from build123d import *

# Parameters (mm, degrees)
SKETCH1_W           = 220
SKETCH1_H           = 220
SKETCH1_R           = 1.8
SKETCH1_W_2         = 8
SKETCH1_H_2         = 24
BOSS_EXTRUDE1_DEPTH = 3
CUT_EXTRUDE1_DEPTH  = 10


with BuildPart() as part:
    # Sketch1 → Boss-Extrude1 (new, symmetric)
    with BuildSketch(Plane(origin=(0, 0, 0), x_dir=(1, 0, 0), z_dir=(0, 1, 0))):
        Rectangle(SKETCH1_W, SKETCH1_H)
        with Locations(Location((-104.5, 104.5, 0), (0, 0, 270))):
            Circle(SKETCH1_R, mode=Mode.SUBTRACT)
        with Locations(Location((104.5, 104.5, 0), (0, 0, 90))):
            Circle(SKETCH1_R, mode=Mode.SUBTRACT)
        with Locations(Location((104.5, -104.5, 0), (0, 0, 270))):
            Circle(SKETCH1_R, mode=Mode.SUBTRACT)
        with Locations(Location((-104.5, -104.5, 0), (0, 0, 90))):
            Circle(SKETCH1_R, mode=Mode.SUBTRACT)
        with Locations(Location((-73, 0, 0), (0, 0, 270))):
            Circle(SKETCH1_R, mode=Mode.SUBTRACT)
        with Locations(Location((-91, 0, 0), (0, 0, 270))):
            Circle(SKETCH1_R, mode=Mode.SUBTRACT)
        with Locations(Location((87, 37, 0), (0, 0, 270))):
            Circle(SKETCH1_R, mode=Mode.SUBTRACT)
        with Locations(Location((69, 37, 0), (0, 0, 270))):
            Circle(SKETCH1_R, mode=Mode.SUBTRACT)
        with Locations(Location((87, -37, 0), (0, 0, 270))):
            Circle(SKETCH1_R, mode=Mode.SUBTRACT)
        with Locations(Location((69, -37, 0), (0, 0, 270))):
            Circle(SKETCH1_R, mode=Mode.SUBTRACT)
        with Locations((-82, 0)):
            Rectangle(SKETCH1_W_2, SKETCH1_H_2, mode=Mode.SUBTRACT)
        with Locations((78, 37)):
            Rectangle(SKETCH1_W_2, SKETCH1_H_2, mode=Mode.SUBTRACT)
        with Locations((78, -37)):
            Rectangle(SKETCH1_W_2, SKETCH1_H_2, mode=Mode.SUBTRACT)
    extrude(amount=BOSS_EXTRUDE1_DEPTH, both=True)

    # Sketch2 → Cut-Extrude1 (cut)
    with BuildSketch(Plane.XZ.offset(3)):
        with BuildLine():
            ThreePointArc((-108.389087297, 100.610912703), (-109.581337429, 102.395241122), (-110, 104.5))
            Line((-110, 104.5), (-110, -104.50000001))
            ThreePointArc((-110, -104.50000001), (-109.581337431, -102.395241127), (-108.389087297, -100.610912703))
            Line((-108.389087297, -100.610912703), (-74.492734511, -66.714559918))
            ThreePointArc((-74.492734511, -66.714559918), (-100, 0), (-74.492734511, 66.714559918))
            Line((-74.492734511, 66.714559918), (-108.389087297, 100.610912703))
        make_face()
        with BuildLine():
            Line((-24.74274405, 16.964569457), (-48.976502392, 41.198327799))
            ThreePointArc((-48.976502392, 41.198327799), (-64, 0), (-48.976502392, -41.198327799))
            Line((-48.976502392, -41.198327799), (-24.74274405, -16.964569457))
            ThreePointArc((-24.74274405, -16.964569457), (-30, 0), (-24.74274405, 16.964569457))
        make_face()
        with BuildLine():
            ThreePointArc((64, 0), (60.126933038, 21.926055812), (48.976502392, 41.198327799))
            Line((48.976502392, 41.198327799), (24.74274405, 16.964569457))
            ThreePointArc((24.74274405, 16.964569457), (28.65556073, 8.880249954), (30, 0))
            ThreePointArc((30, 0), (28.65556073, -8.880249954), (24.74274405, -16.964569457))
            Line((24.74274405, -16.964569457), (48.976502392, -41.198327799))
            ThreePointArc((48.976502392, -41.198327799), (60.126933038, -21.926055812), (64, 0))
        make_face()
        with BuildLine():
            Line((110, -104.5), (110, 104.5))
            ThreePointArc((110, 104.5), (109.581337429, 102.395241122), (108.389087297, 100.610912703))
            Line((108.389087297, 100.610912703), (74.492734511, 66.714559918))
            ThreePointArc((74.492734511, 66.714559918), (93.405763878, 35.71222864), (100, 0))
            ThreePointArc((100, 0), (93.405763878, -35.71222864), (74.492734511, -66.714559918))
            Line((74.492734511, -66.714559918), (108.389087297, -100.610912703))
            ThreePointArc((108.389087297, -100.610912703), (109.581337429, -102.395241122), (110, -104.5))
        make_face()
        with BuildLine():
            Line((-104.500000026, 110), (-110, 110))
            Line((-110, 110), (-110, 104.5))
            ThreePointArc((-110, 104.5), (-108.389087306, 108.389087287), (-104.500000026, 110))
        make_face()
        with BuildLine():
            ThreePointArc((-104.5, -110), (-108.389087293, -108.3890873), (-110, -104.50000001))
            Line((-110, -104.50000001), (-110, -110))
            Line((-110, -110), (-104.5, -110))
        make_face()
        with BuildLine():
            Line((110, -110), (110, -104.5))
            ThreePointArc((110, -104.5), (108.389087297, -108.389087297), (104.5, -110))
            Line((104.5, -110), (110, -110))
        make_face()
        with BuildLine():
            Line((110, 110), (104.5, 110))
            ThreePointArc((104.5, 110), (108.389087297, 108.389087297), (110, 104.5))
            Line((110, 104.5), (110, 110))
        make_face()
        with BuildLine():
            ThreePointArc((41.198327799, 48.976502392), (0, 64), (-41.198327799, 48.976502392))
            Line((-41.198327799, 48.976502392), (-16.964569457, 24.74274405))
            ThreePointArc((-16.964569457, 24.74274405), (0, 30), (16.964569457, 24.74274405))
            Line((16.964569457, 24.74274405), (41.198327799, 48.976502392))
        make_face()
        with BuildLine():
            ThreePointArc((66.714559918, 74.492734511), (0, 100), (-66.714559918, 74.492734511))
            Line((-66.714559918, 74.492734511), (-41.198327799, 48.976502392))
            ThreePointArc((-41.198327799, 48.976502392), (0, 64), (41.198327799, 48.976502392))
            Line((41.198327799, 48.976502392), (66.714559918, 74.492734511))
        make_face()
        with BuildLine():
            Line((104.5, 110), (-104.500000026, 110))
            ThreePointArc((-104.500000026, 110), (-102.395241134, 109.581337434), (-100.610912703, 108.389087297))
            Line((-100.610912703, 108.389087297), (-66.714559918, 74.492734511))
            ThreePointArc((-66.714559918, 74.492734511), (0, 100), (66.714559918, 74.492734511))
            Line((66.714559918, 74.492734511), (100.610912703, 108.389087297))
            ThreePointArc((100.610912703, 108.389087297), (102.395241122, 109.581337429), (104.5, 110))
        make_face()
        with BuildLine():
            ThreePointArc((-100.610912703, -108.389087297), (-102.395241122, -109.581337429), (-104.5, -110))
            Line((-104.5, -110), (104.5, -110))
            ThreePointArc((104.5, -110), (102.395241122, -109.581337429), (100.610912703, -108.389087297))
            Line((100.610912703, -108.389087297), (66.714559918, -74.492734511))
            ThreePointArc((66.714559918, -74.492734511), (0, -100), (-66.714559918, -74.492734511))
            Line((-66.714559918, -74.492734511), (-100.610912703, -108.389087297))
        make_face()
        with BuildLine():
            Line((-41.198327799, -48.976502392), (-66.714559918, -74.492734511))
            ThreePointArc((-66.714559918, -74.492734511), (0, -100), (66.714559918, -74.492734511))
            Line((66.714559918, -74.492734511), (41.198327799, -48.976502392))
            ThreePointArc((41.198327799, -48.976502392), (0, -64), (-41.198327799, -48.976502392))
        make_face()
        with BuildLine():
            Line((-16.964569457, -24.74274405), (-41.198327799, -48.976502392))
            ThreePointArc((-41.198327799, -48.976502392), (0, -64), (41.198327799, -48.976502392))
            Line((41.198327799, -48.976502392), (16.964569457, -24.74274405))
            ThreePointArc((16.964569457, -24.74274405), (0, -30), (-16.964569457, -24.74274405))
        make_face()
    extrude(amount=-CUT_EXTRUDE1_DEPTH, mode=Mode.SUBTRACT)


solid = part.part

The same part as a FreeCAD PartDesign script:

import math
import FreeCAD as App
import Part
import Sketcher


def add_polygon(sketch, points):
    """Adds a closed chain of lines whose ends are joined by coincident constraints."""
    first, n = sketch.GeometryCount, len(points)
    for a, b in zip(points, points[1:] + points[:1]):
        sketch.addGeometry(Part.LineSegment(App.Vector(*a, 0), App.Vector(*b, 0)), False)
    for i in range(n):
        sketch.addConstraint(Sketcher.Constraint("Coincident", first + i, 2, first + (i + 1) % n, 1))

doc = App.newDocument("Part")
params = doc.addObject("Spreadsheet::Sheet", "Params")
for row, (alias, value) in enumerate([
    ("sketch1_diameter", "3.6 mm"),
    ("sketch1_width", "220 mm"),
    ("sketch1_width2", "8 mm"),
    ("sketch1_height", "24 mm"),
    ("pad1_length", "6 mm"),
    ("sketch2_radius", "100 mm"),
    ("sketch2_radius2", "64 mm"),
    ("sketch2_radius3", "30 mm"),
    ("sketch2_radius4", "5.5 mm"),
    ("sketch2_width", "209 mm"),
    ("pocket1_length", "10 mm"),
], start=1):
    params.set(f"A{row}", alias)
    params.set(f"B{row}", "=" + value)
    params.setAlias(f"B{row}", alias)

body = doc.addObject("PartDesign::Body", "Body")

sketch1 = body.newObject("Sketcher::SketchObject", "Sketch")
sketch1.AttachmentSupport = (doc.getObject("XZ_Plane"), [""])
sketch1.MapMode = "FlatFace"
add_polygon(sketch1, [(-110, -110), (-110, 110), (110, 110), (110, -110)])
sketch1.addGeometry(Part.Circle(App.Vector(-104.5, 104.5, 0), App.Vector(0, 0, 1), 1.8), False)
sketch1.addGeometry(Part.Circle(App.Vector(104.5, 104.5, 0), App.Vector(0, 0, 1), 1.8), False)
sketch1.addGeometry(Part.Circle(App.Vector(69, 37, 0), App.Vector(0, 0, 1), 1.8), False)
add_polygon(sketch1, [(82, 49), (74, 49), (74, 25), (82, 25)])
sketch1.addGeometry(Part.Circle(App.Vector(87, 37, 0), App.Vector(0, 0, 1), 1.8), False)
sketch1.addGeometry(Part.Circle(App.Vector(-91, 0, 0), App.Vector(0, 0, 1), 1.8), False)
add_polygon(sketch1, [(-78, 12), (-86, 12), (-86, -12), (-78, -12)])
sketch1.addGeometry(Part.Circle(App.Vector(-73, 0, 0), App.Vector(0, 0, 1), 1.8), False)
sketch1.addGeometry(Part.Circle(App.Vector(-104.5, -104.5, 0), App.Vector(0, 0, 1), 1.8), False)
sketch1.addGeometry(Part.Circle(App.Vector(69, -37, 0), App.Vector(0, 0, 1), 1.8), False)
add_polygon(sketch1, [(82, -25), (74, -25), (74, -49), (82, -49)])
sketch1.addGeometry(Part.Circle(App.Vector(87, -37, 0), App.Vector(0, 0, 1), 1.8), False)
sketch1.addGeometry(Part.Circle(App.Vector(104.5, -104.5, 0), App.Vector(0, 0, 1), 1.8), False)
sketch1.addConstraint([
    Sketcher.Constraint("Vertical", 0),
    Sketcher.Constraint("Horizontal", 1),
    Sketcher.Constraint("Vertical", 2),
    Sketcher.Constraint("Horizontal", 3),
    Sketcher.Constraint("Horizontal", 7),
    Sketcher.Constraint("Vertical", 8),
    Sketcher.Constraint("Horizontal", 9),
    Sketcher.Constraint("Vertical", 10),
    Sketcher.Constraint("Horizontal", 13),
    Sketcher.Constraint("Vertical", 14),
    Sketcher.Constraint("Horizontal", 15),
    Sketcher.Constraint("Vertical", 16),
    Sketcher.Constraint("Horizontal", 20),
    Sketcher.Constraint("Vertical", 21),
    Sketcher.Constraint("Horizontal", 22),
    Sketcher.Constraint("Vertical", 23),
    Sketcher.Constraint("Equal", 4, 5),
    Sketcher.Constraint("Equal", 5, 6),
    Sketcher.Constraint("Equal", 6, 11),
    Sketcher.Constraint("Equal", 11, 12),
    Sketcher.Constraint("Equal", 12, 17),
    Sketcher.Constraint("Equal", 17, 18),
    Sketcher.Constraint("Equal", 18, 19),
    Sketcher.Constraint("Equal", 19, 24),
    Sketcher.Constraint("Equal", 24, 25),
    Sketcher.Constraint("Symmetric", 5, 3, 18, 3, -1, 1),
    Sketcher.Constraint("Symmetric", 4, 3, 25, 3, -1, 1),
    Sketcher.Constraint("Symmetric", 0, 2, 2, 2, -1, 1),
    Sketcher.Constraint("Symmetric", 4, 3, 5, 3, -2),
    Sketcher.Constraint("Symmetric", 6, 3, 19, 3, -1),
    Sketcher.Constraint("Symmetric", 11, 3, 24, 3, -1),
    Sketcher.Constraint("Symmetric", 8, 2, 20, 2, -1),
    Sketcher.Constraint("Symmetric", 10, 2, 22, 2, -1),
    Sketcher.Constraint("PointOnObject", 12, 3, -1),
    Sketcher.Constraint("PointOnObject", 17, 3, -1),
    Sketcher.Constraint("Horizontal", 6, 3, 11, 3),
    Sketcher.Constraint("Equal", 9, 13),
    Sketcher.Constraint("Equal", 3, 0),
    Sketcher.Constraint("Equal", 10, 14),
    Sketcher.Constraint("Diameter", 4, 3.6),
    Sketcher.Constraint("DistanceX", 1, 1, 1, 2, 220.0),
    Sketcher.Constraint("DistanceX", 7, 2, 7, 1, 8.0),
    Sketcher.Constraint("DistanceY", 8, 2, 8, 1, 24.0),
    Sketcher.Constraint("DistanceX", -1, 1, 6, 3, 69.0),
    Sketcher.Constraint("DistanceY", -1, 1, 6, 3, 37.0),
    Sketcher.Constraint("DistanceX", -1, 1, 11, 3, 87.0),
    Sketcher.Constraint("DistanceX", 12, 3, -1, 1, 91.0),
    Sketcher.Constraint("DistanceX", 17, 3, -1, 1, 73.0),
    Sketcher.Constraint("DistanceX", -1, 1, 7, 2, 74.0),
    Sketcher.Constraint("DistanceY", -1, 1, 7, 2, 49.0),
    Sketcher.Constraint("DistanceX", 13, 2, -1, 1, 86.0),
    Sketcher.Constraint("DistanceY", -1, 1, 13, 2, 12.0),
    Sketcher.Constraint("DistanceX", 4, 3, 5, 3, 209.0),
    Sketcher.Constraint("DistanceY", 18, 3, 4, 3, 209.0),
])
sketch1.setExpression("Constraints[55]", "Params.sketch1_diameter")
sketch1.setExpression("Constraints[56]", "Params.sketch1_width")
sketch1.setExpression("Constraints[57]", "Params.sketch1_width2")
sketch1.setExpression("Constraints[58]", "Params.sketch1_height")
pad1 = body.newObject("PartDesign::Pad", "Pad")
pad1.Profile = sketch1
pad1.setExpression("Length", "Params.pad1_length")
pad1.Midplane = True

sketch2 = body.newObject("Sketcher::SketchObject", "Sketch001")
sketch2.AttachmentSupport = (doc.getObject("XZ_Plane"), [""])
sketch2.MapMode = "FlatFace"
sketch2.AttachmentOffset = App.Placement(App.Vector(0, 0, 3), App.Rotation())
sketch2.addGeometry([
    Part.ArcOfCircle(Part.Circle(App.Vector(-104.5, 104.5, 0), App.Vector(0, 0, 1), 5.5), math.radians(180), math.radians(225)),
    Part.LineSegment(App.Vector(-110, 104.5, 0), App.Vector(-110, -104.5, 0)),
    Part.ArcOfCircle(Part.Circle(App.Vector(-104.5, -104.5, 0), App.Vector(0, 0, 1), 5.5), math.radians(135), math.radians(180)),
    Part.LineSegment(App.Vector(-108.4, -100.6, 0), App.Vector(-74.5, -66.7, 0)),
    Part.ArcOfCircle(Part.Circle(App.Vector(0, 0, 0), App.Vector(0, 0, 1), 100), math.radians(138), math.radians(222)),
    Part.LineSegment(App.Vector(-74.5, 66.7, 0), App.Vector(-108.4, 100.6, 0)),
    Part.LineSegment(App.Vector(-24.7, 17, 0), App.Vector(-49, 41.2, 0)),
    Part.ArcOfCircle(Part.Circle(App.Vector(0, 0, 0), App.Vector(0, 0, 1), 64), math.radians(140), math.radians(220)),
    Part.LineSegment(App.Vector(-49, -41.2, 0), App.Vector(-24.7, -17, 0)),
    Part.ArcOfCircle(Part.Circle(App.Vector(0, 0, 0), App.Vector(0, 0, 1), 30), math.radians(146), math.radians(214)),
    Part.ArcOfCircle(Part.Circle(App.Vector(0, 0, 0), App.Vector(0, 0, 1), 64), math.radians(0), math.radians(40)),
    Part.LineSegment(App.Vector(49, 41.2, 0), App.Vector(24.7, 17, 0)),
    Part.ArcOfCircle(Part.Circle(App.Vector(0, 0, 0), App.Vector(0, 0, 1), 30), math.radians(-34), math.radians(34)),
    Part.LineSegment(App.Vector(24.7, -17, 0), App.Vector(49, -41.2, 0)),
    Part.ArcOfCircle(Part.Circle(App.Vector(0, 0, 0), App.Vector(0, 0, 1), 64), math.radians(-40), math.radians(0)),
    Part.LineSegment(App.Vector(110, -104.5, 0), App.Vector(110, 104.5, 0)),
    Part.ArcOfCircle(Part.Circle(App.Vector(104.5, 104.5, 0), App.Vector(0, 0, 1), 5.5), math.radians(-45), math.radians(0)),
    Part.LineSegment(App.Vector(108.4, 100.6, 0), App.Vector(74.5, 66.7, 0)),
    Part.ArcOfCircle(Part.Circle(App.Vector(0, 0, 0), App.Vector(0, 0, 1), 100), math.radians(0), math.radians(42)),
    Part.ArcOfCircle(Part.Circle(App.Vector(0, 0, 0), App.Vector(0, 0, 1), 100), math.radians(-42), math.radians(0)),
    Part.LineSegment(App.Vector(74.5, -66.7, 0), App.Vector(108.4, -100.6, 0)),
    Part.ArcOfCircle(Part.Circle(App.Vector(104.5, -104.5, 0), App.Vector(0, 0, 1), 5.5), math.radians(0), math.radians(45)),
    Part.LineSegment(App.Vector(-104.5, 110, 0), App.Vector(-110, 110, 0)),
    Part.LineSegment(App.Vector(-110, 110, 0), App.Vector(-110, 104.5, 0)),
    Part.ArcOfCircle(Part.Circle(App.Vector(-104.5, 104.5, 0), App.Vector(0, 0, 1), 5.5), math.radians(90), math.radians(180)),
    Part.ArcOfCircle(Part.Circle(App.Vector(-104.5, -104.5, 0), App.Vector(0, 0, 1), 5.5), math.radians(-180), math.radians(-90)),
    Part.LineSegment(App.Vector(-110, -104.5, 0), App.Vector(-110, -110, 0)),
    Part.LineSegment(App.Vector(-110, -110, 0), App.Vector(-104.5, -110, 0)),
    Part.LineSegment(App.Vector(110, -110, 0), App.Vector(110, -104.5, 0)),
    Part.ArcOfCircle(Part.Circle(App.Vector(104.5, -104.5, 0), App.Vector(0, 0, 1), 5.5), math.radians(-90), math.radians(0)),
    Part.LineSegment(App.Vector(104.5, -110, 0), App.Vector(110, -110, 0)),
    Part.LineSegment(App.Vector(110, 110, 0), App.Vector(104.5, 110, 0)),
    Part.ArcOfCircle(Part.Circle(App.Vector(104.5, 104.5, 0), App.Vector(0, 0, 1), 5.5), math.radians(0), math.radians(90)),
    Part.LineSegment(App.Vector(110, 104.5, 0), App.Vector(110, 110, 0)),
    Part.ArcOfCircle(Part.Circle(App.Vector(0, 0, 0), App.Vector(0, 0, 1), 30), math.radians(56), math.radians(124)),
    Part.LineSegment(App.Vector(17, 24.7, 0), App.Vector(66.7, 74.5, 0)),
    Part.LineSegment(App.Vector(66.7, 74.5, 0), App.Vector(100.6, 108.4, 0)),
    Part.ArcOfCircle(Part.Circle(App.Vector(104.5, 104.5, 0), App.Vector(0, 0, 1), 5.5), math.radians(90), math.radians(135)),
    Part.LineSegment(App.Vector(104.5, 110, 0), App.Vector(-104.5, 110, 0)),
    Part.ArcOfCircle(Part.Circle(App.Vector(-104.5, 104.5, 0), App.Vector(0, 0, 1), 5.5), math.radians(45), math.radians(90)),
    Part.LineSegment(App.Vector(-100.6, 108.4, 0), App.Vector(-66.7, 74.5, 0)),
    Part.LineSegment(App.Vector(-66.7, 74.5, 0), App.Vector(-17, 24.7, 0)),
    Part.ArcOfCircle(Part.Circle(App.Vector(-104.5, -104.5, 0), App.Vector(0, 0, 1), 5.5), math.radians(-90), math.radians(-45)),
    Part.LineSegment(App.Vector(-104.5, -110, 0), App.Vector(104.5, -110, 0)),
    Part.ArcOfCircle(Part.Circle(App.Vector(104.5, -104.5, 0), App.Vector(0, 0, 1), 5.5), math.radians(-135), math.radians(-90)),
    Part.LineSegment(App.Vector(100.6, -108.4, 0), App.Vector(66.7, -74.5, 0)),
    Part.LineSegment(App.Vector(66.7, -74.5, 0), App.Vector(17, -24.7, 0)),
    Part.ArcOfCircle(Part.Circle(App.Vector(0, 0, 0), App.Vector(0, 0, 1), 30), math.radians(-124), math.radians(-56)),
    Part.LineSegment(App.Vector(-17, -24.7, 0), App.Vector(-66.7, -74.5, 0)),
    Part.LineSegment(App.Vector(-66.7, -74.5, 0), App.Vector(-100.6, -108.4, 0)),
], False)
sketch2.addConstraint([
    Sketcher.Constraint("Tangent", 0, 1, 1, 1),
    Sketcher.Constraint("Tangent", 1, 2, 2, 2),
    Sketcher.Constraint("Tangent", 2, 1, 3, 1),
    Sketcher.Constraint("Coincident", 3, 2, 4, 2),
    Sketcher.Constraint("Coincident", 4, 1, 5, 1),
    Sketcher.Constraint("Tangent", 5, 2, 0, 2),
    Sketcher.Constraint("Coincident", 6, 2, 7, 1),
    Sketcher.Constraint("Coincident", 7, 2, 8, 1),
    Sketcher.Constraint("Coincident", 8, 2, 9, 2),
    Sketcher.Constraint("Coincident", 9, 1, 6, 1),
    Sketcher.Constraint("Coincident", 10, 2, 11, 1),
    Sketcher.Constraint("Coincident", 11, 2, 12, 2),
    Sketcher.Constraint("Coincident", 12, 1, 13, 1),
    Sketcher.Constraint("Coincident", 13, 2, 14, 1),
    Sketcher.Constraint("Tangent", 14, 2, 10, 1),
    Sketcher.Constraint("Tangent", 15, 2, 16, 2),
    Sketcher.Constraint("Tangent", 16, 1, 17, 1),
    Sketcher.Constraint("Coincident", 17, 2, 18, 2),
    Sketcher.Constraint("Tangent", 18, 1, 19, 2),
    Sketcher.Constraint("Coincident", 19, 1, 20, 1),
    Sketcher.Constraint("Tangent", 20, 2, 21, 2),
    Sketcher.Constraint("Tangent", 21, 1, 15, 1),
    Sketcher.Constraint("Coincident", 22, 2, 23, 1),
    Sketcher.Constraint("Tangent", 23, 2, 24, 2),
    Sketcher.Constraint("Tangent", 24, 1, 22, 1),
    Sketcher.Constraint("Tangent", 25, 1, 26, 1),
    Sketcher.Constraint("Coincident", 26, 2, 27, 1),
    Sketcher.Constraint("Tangent", 27, 2, 25, 2),
    Sketcher.Constraint("Tangent", 28, 2, 29, 2),
    Sketcher.Constraint("Tangent", 29, 1, 30, 1),
    Sketcher.Constraint("Coincident", 30, 2, 28, 1),
    Sketcher.Constraint("Tangent", 31, 2, 32, 2),
    Sketcher.Constraint("Tangent", 32, 1, 33, 1),
    Sketcher.Constraint("Coincident", 33, 2, 31, 1),
    Sketcher.Constraint("Coincident", 34, 1, 35, 1),
    Sketcher.Constraint("Coincident", 35, 2, 36, 1),
    Sketcher.Constraint("Tangent", 36, 2, 37, 2),
    Sketcher.Constraint("Tangent", 37, 1, 38, 1),
    Sketcher.Constraint("Tangent", 38, 2, 39, 2),
    Sketcher.Constraint("Tangent", 39, 1, 40, 1),
    Sketcher.Constraint("Coincident", 40, 2, 41, 1),
    Sketcher.Constraint("Coincident", 41, 2, 34, 2),
    Sketcher.Constraint("Tangent", 42, 1, 43, 1),
    Sketcher.Constraint("Tangent", 43, 2, 44, 2),
    Sketcher.Constraint("Tangent", 44, 1, 45, 1),
    Sketcher.Constraint("Coincident", 45, 2, 46, 1),
    Sketcher.Constraint("Coincident", 46, 2, 47, 2),
    Sketcher.Constraint("Coincident", 47, 1, 48, 1),
    Sketcher.Constraint("Coincident", 48, 2, 49, 1),
    Sketcher.Constraint("Tangent", 49, 2, 42, 2),
    Sketcher.Constraint("Vertical", 1),
    Sketcher.Constraint("Vertical", 15),
    Sketcher.Constraint("Horizontal", 22),
    Sketcher.Constraint("Vertical", 23),
    Sketcher.Constraint("Vertical", 26),
    Sketcher.Constraint("Horizontal", 27),
    Sketcher.Constraint("Vertical", 28),
    Sketcher.Constraint("Horizontal", 30),
    Sketcher.Constraint("Horizontal", 31),
    Sketcher.Constraint("Vertical", 33),
    Sketcher.Constraint("Horizontal", 38),
    Sketcher.Constraint("Horizontal", 43),
    Sketcher.Constraint("Coincident", 4, 3, -1, 1),
    Sketcher.Constraint("Coincident", 7, 3, -1, 1),
    Sketcher.Constraint("Coincident", 9, 3, -1, 1),
    Sketcher.Constraint("Coincident", 10, 3, -1, 1),
    Sketcher.Constraint("Coincident", 12, 3, -1, 1),
    Sketcher.Constraint("Coincident", 18, 3, -1, 1),
    Sketcher.Constraint("Coincident", 34, 3, -1, 1),
    Sketcher.Constraint("Coincident", 47, 3, -1, 1),
    Sketcher.Constraint("Coincident", 24, 3, 0, 3),
    Sketcher.Constraint("Coincident", 25, 3, 2, 3),
    Sketcher.Constraint("Coincident", 29, 3, 21, 3),
    Sketcher.Constraint("Coincident", 32, 3, 16, 3),
    Sketcher.Constraint("Coincident", 37, 3, 16, 3),
    Sketcher.Constraint("Coincident", 39, 3, 0, 3),
    Sketcher.Constraint("Coincident", 42, 3, 2, 3),
    Sketcher.Constraint("Coincident", 44, 3, 21, 3),
    Sketcher.Constraint("Equal", 0, 2),
    Sketcher.Constraint("Equal", 7, 10),
    Sketcher.Constraint("Equal", 9, 12),
    Sketcher.Constraint("Equal", 10, 14),
    Sketcher.Constraint("Equal", 2, 16),
    Sketcher.Constraint("Equal", 4, 18),
    Sketcher.Constraint("Equal", 18, 19),
    Sketcher.Constraint("Equal", 16, 21),
    Sketcher.Constraint("Equal", 21, 24),
    Sketcher.Constraint("Equal", 24, 25),
    Sketcher.Constraint("Equal", 25, 29),
    Sketcher.Constraint("Equal", 29, 32),
    Sketcher.Constraint("Equal", 12, 34),
    Sketcher.Constraint("Equal", 32, 37),
    Sketcher.Constraint("Equal", 37, 39),
    Sketcher.Constraint("Equal", 39, 42),
    Sketcher.Constraint("Equal", 42, 44),
    Sketcher.Constraint("Equal", 34, 47),
    Sketcher.Constraint("Symmetric", 2, 3, 16, 3, -1, 1),
    Sketcher.Constraint("Symmetric", 40, 2, 45, 2, -1, 1),
    Sketcher.Constraint("Symmetric", 35, 2, 48, 2, -1, 1),
    Sketcher.Constraint("Symmetric", 35, 2, 40, 2, -2),
    Sketcher.Constraint("PointOnObject", 14, 2, -1),
    Sketcher.Constraint("PointOnObject", 18, 1, -1),
    Sketcher.Constraint("Perpendicular", 3, 5),
    Sketcher.Constraint("Parallel", 5, 6),
    Sketcher.Constraint("Perpendicular", 6, 8),
    Sketcher.Constraint("Parallel", 8, 11),
    Sketcher.Constraint("Perpendicular", 11, 13),
    Sketcher.Constraint("Perpendicular", 13, 17),
    Sketcher.Constraint("Perpendicular", 17, 20),
    Sketcher.Constraint("Perpendicular", 20, 35),
    Sketcher.Constraint("Parallel", 35, 36),
    Sketcher.Constraint("Perpendicular", 36, 40),
    Sketcher.Constraint("Parallel", 40, 41),
    Sketcher.Constraint("Parallel", 45, 46),
    Sketcher.Constraint("Perpendicular", 46, 48),
    Sketcher.Constraint("Horizontal", 6, 2, 10, 2),
    Sketcher.Constraint("Horizontal", 8, 2, 12, 1),
    Sketcher.Constraint("Vertical", 6, 2, 7, 2),
    Sketcher.Constraint("Equal", 43, 1),
    Sketcher.Constraint("Equal", 20, 36),
    Sketcher.Constraint("Radius", 4, 100.0),
    Sketcher.Constraint("Radius", 7, 64.0),
    Sketcher.Constraint("Radius", 9, 30.0),
    Sketcher.Constraint("Radius", 0, 5.5),
    Sketcher.Constraint("DistanceX", 38, 2, 38, 1, 209.0),
    Sketcher.Constraint("Distance", 6, 34.27171),
])
sketch2.setExpression("Constraints[120]", "Params.sketch2_radius")
sketch2.setExpression("Constraints[121]", "Params.sketch2_radius2")
sketch2.setExpression("Constraints[122]", "Params.sketch2_radius3")
sketch2.setExpression("Constraints[123]", "Params.sketch2_radius4")
sketch2.setExpression("Constraints[124]", "Params.sketch2_width")
pocket1 = body.newObject("PartDesign::Pocket", "Pocket")
pocket1.Profile = sketch2
pocket1.setExpression("Length", "Params.pocket1_length")

doc.recompute()
